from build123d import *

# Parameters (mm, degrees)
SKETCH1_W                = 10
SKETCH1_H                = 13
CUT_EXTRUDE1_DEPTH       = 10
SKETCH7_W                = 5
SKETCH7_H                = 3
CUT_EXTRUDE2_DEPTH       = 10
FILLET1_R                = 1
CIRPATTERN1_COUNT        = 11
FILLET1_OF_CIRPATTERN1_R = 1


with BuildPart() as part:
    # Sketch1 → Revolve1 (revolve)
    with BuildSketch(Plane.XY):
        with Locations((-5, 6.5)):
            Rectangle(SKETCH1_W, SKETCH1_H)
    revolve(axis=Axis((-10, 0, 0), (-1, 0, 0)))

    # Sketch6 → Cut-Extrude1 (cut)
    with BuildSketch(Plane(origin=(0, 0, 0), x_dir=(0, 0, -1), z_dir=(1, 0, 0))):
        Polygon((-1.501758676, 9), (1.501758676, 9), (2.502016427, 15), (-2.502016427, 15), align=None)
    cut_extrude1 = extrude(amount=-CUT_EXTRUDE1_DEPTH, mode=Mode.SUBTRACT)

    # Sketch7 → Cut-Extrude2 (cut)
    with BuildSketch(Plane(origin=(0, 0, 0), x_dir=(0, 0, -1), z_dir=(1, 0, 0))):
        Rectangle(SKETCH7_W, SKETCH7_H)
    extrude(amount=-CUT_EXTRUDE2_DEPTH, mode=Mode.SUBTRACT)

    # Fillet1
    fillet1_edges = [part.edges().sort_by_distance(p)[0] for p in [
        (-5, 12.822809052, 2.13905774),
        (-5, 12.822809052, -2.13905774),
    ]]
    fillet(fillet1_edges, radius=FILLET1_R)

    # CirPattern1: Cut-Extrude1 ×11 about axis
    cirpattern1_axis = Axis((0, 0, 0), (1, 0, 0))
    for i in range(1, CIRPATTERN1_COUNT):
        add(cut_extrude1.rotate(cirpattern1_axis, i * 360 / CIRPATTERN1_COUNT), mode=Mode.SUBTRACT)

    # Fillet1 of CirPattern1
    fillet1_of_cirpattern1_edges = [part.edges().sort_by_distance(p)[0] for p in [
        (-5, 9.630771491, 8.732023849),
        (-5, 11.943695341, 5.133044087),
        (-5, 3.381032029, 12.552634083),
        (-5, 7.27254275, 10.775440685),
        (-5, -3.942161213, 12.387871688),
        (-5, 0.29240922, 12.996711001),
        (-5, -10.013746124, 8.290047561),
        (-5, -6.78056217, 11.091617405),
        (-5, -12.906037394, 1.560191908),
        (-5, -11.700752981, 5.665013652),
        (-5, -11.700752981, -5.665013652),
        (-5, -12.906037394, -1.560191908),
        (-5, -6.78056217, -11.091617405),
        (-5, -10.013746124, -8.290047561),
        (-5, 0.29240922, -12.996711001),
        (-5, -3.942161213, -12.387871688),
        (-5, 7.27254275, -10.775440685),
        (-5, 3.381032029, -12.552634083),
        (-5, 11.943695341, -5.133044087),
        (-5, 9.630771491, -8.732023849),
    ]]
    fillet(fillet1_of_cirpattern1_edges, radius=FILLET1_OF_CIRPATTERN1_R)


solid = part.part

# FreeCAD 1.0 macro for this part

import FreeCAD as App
import Part
import Sketcher


def edges_at(feature, points):
    """Names of the edges that pass closest to the given points."""
    edges = feature.Shape.Edges
    near = lambda p: min(range(len(edges)), key=lambda i: edges[i].distToShape(Part.Vertex(*p))[0])
    return sorted({f"Edge{near(p) + 1}" for p in points})

doc = App.newDocument("Part")
body = doc.addObject("PartDesign::Body", "Body")

sketch1 = doc.addObject("Sketcher::SketchObject", "Sketch")
body.addObject(sketch1)
sketch1.AttachmentSupport = (doc.XY_Plane, [""])
sketch1.MapMode = "FlatFace"
sketch1.addGeometry(Part.LineSegment(App.Vector(-10, 13, 0), App.Vector(-10, 0, 0)), False)
sketch1.addGeometry(Part.LineSegment(App.Vector(-10, 0, 0), App.Vector(0, 0, 0)), False)
sketch1.addGeometry(Part.LineSegment(App.Vector(0, 0, 0), App.Vector(0, 13, 0)), False)
sketch1.addGeometry(Part.LineSegment(App.Vector(0, 13, 0), App.Vector(-10, 13, 0)), False)
sketch1.addConstraint(Sketcher.Constraint("Coincident", 0, 2, 1, 1))
sketch1.addConstraint(Sketcher.Constraint("Coincident", 1, 2, 2, 1))
sketch1.addConstraint(Sketcher.Constraint("Coincident", 2, 2, 3, 1))
sketch1.addConstraint(Sketcher.Constraint("Coincident", 3, 2, 0, 1))
sketch1.addConstraint(Sketcher.Constraint("Vertical", 0))
sketch1.addConstraint(Sketcher.Constraint("Horizontal", 1))
sketch1.addConstraint(Sketcher.Constraint("Vertical", 2))
sketch1.addConstraint(Sketcher.Constraint("Horizontal", 3))
sketch1.addConstraint(Sketcher.Constraint("Coincident", 1, 2, -1, 1))
sketch1.addConstraint(Sketcher.Constraint("DistanceX", 1, 1, 1, 2, 10.0))
sketch1.addConstraint(Sketcher.Constraint("DistanceY", 0, 2, 0, 1, 13.0))
revolution = doc.addObject("PartDesign::Revolution", "Revolution")
body.addObject(revolution)
revolution.Profile = sketch1
revolution.ReferenceAxis = (sketch1, ["H_Axis"])
revolution.Angle = 360

sketch2 = doc.addObject("Sketcher::SketchObject", "Sketch001")
body.addObject(sketch2)
sketch2.AttachmentSupport = (doc.YZ_Plane, [""])
sketch2.MapMode = "FlatFace"
sketch2.addGeometry(Part.LineSegment(App.Vector(9, 1.501759, 0), App.Vector(9, -1.501759, 0)), False)
sketch2.addGeometry(Part.LineSegment(App.Vector(9, -1.501759, 0), App.Vector(15, -2.502016, 0)), False)
sketch2.addGeometry(Part.LineSegment(App.Vector(15, -2.502016, 0), App.Vector(15, 2.502016, 0)), False)
sketch2.addGeometry(Part.LineSegment(App.Vector(15, 2.502016, 0), App.Vector(9, 1.501759, 0)), False)
sketch2.addConstraint(Sketcher.Constraint("Coincident", 0, 2, 1, 1))
sketch2.addConstraint(Sketcher.Constraint("Coincident", 1, 2, 2, 1))
sketch2.addConstraint(Sketcher.Constraint("Coincident", 2, 2, 3, 1))
sketch2.addConstraint(Sketcher.Constraint("Coincident", 3, 2, 0, 1))
sketch2.addConstraint(Sketcher.Constraint("Vertical", 0))
sketch2.addConstraint(Sketcher.Constraint("Vertical", 2))
sketch2.addConstraint(Sketcher.Constraint("Equal", 1, 3))
sketch2.addConstraint(Sketcher.Constraint("DistanceX", -1, 1, 0, 2, 9.0))
sketch2.addConstraint(Sketcher.Constraint("DistanceX", -1, 1, 1, 2, 15.0))
sketch2.addConstraint(Sketcher.Constraint("DistanceY", 0, 2, 0, 1, 3.003517))
sketch2.addConstraint(Sketcher.Constraint("DistanceY", 2, 1, 2, 2, 5.004033))
sketch2.addConstraint(Sketcher.Constraint("DistanceY", 0, 2, -1, 1, 1.501759))
pocket1 = doc.addObject("PartDesign::Pocket", "Pocket")
body.addObject(pocket1)
pocket1.Profile = sketch2
pocket1.Length = 10

sketch3 = doc.addObject("Sketcher::SketchObject", "Sketch002")
body.addObject(sketch3)
sketch3.AttachmentSupport = (doc.YZ_Plane, [""])
sketch3.MapMode = "FlatFace"
sketch3.addGeometry(Part.LineSegment(App.Vector(1.5, 2.5, 0), App.Vector(-1.5, 2.5, 0)), False)
sketch3.addGeometry(Part.LineSegment(App.Vector(-1.5, 2.5, 0), App.Vector(-1.5, -2.5, 0)), False)
sketch3.addGeometry(Part.LineSegment(App.Vector(-1.5, -2.5, 0), App.Vector(1.5, -2.5, 0)), False)
sketch3.addGeometry(Part.LineSegment(App.Vector(1.5, -2.5, 0), App.Vector(1.5, 2.5, 0)), False)
sketch3.addConstraint(Sketcher.Constraint("Coincident", 0, 2, 1, 1))
sketch3.addConstraint(Sketcher.Constraint("Coincident", 1, 2, 2, 1))
sketch3.addConstraint(Sketcher.Constraint("Coincident", 2, 2, 3, 1))
sketch3.addConstraint(Sketcher.Constraint("Coincident", 3, 2, 0, 1))
sketch3.addConstraint(Sketcher.Constraint("Horizontal", 0))
sketch3.addConstraint(Sketcher.Constraint("Vertical", 1))
sketch3.addConstraint(Sketcher.Constraint("Horizontal", 2))
sketch3.addConstraint(Sketcher.Constraint("Vertical", 3))
sketch3.addConstraint(Sketcher.Constraint("Symmetric", 0, 2, 2, 2, -1, 1))
sketch3.addConstraint(Sketcher.Constraint("DistanceX", 0, 2, 0, 1, 3.0))
sketch3.addConstraint(Sketcher.Constraint("DistanceY", 1, 2, 1, 1, 5.0))
pocket2 = doc.addObject("PartDesign::Pocket", "Pocket001")
body.addObject(pocket2)
pocket2.Profile = sketch3
pocket2.Length = 10
doc.recompute()

fillet = doc.addObject("PartDesign::Fillet", "Fillet")
body.addObject(fillet)
fillet.Base = (pocket2, edges_at(pocket2, [(-5, 12.823, 2.139), (-5, 12.823, -2.139)]))
fillet.Radius = 1
doc.recompute()

polarpattern = doc.addObject("PartDesign::PolarPattern", "PolarPattern")
body.addObject(polarpattern)
polarpattern.Originals = [pocket1]
polarpattern.Axis = (doc.X_Axis, [""])
polarpattern.Angle = 360
polarpattern.Occurrences = 11
body.Tip = polarpattern
doc.recompute()

fillet2 = doc.addObject("PartDesign::Fillet", "Fillet001")
body.addObject(fillet2)
fillet2.Base = (polarpattern, edges_at(polarpattern, [
    (-5, 9.631, 8.732),
    (-5, 11.944, 5.133),
    (-5, 3.381, 12.553),
    (-5, 7.273, 10.775),
    (-5, -3.942, 12.388),
    (-5, 0.292, 12.997),
    (-5, -10.014, 8.29),
    (-5, -6.781, 11.092),
    (-5, -12.906, 1.56),
    (-5, -11.701, 5.665),
    (-5, -11.701, -5.665),
    (-5, -12.906, -1.56),
    (-5, -6.781, -11.092),
    (-5, -10.014, -8.29),
    (-5, 0.292, -12.997),
    (-5, -3.942, -12.388),
    (-5, 7.273, -10.775),
    (-5, 3.381, -12.553),
    (-5, 11.944, -5.133),
    (-5, 9.631, -8.732),
]))
fillet2.Radius = 1

doc.recompute()
